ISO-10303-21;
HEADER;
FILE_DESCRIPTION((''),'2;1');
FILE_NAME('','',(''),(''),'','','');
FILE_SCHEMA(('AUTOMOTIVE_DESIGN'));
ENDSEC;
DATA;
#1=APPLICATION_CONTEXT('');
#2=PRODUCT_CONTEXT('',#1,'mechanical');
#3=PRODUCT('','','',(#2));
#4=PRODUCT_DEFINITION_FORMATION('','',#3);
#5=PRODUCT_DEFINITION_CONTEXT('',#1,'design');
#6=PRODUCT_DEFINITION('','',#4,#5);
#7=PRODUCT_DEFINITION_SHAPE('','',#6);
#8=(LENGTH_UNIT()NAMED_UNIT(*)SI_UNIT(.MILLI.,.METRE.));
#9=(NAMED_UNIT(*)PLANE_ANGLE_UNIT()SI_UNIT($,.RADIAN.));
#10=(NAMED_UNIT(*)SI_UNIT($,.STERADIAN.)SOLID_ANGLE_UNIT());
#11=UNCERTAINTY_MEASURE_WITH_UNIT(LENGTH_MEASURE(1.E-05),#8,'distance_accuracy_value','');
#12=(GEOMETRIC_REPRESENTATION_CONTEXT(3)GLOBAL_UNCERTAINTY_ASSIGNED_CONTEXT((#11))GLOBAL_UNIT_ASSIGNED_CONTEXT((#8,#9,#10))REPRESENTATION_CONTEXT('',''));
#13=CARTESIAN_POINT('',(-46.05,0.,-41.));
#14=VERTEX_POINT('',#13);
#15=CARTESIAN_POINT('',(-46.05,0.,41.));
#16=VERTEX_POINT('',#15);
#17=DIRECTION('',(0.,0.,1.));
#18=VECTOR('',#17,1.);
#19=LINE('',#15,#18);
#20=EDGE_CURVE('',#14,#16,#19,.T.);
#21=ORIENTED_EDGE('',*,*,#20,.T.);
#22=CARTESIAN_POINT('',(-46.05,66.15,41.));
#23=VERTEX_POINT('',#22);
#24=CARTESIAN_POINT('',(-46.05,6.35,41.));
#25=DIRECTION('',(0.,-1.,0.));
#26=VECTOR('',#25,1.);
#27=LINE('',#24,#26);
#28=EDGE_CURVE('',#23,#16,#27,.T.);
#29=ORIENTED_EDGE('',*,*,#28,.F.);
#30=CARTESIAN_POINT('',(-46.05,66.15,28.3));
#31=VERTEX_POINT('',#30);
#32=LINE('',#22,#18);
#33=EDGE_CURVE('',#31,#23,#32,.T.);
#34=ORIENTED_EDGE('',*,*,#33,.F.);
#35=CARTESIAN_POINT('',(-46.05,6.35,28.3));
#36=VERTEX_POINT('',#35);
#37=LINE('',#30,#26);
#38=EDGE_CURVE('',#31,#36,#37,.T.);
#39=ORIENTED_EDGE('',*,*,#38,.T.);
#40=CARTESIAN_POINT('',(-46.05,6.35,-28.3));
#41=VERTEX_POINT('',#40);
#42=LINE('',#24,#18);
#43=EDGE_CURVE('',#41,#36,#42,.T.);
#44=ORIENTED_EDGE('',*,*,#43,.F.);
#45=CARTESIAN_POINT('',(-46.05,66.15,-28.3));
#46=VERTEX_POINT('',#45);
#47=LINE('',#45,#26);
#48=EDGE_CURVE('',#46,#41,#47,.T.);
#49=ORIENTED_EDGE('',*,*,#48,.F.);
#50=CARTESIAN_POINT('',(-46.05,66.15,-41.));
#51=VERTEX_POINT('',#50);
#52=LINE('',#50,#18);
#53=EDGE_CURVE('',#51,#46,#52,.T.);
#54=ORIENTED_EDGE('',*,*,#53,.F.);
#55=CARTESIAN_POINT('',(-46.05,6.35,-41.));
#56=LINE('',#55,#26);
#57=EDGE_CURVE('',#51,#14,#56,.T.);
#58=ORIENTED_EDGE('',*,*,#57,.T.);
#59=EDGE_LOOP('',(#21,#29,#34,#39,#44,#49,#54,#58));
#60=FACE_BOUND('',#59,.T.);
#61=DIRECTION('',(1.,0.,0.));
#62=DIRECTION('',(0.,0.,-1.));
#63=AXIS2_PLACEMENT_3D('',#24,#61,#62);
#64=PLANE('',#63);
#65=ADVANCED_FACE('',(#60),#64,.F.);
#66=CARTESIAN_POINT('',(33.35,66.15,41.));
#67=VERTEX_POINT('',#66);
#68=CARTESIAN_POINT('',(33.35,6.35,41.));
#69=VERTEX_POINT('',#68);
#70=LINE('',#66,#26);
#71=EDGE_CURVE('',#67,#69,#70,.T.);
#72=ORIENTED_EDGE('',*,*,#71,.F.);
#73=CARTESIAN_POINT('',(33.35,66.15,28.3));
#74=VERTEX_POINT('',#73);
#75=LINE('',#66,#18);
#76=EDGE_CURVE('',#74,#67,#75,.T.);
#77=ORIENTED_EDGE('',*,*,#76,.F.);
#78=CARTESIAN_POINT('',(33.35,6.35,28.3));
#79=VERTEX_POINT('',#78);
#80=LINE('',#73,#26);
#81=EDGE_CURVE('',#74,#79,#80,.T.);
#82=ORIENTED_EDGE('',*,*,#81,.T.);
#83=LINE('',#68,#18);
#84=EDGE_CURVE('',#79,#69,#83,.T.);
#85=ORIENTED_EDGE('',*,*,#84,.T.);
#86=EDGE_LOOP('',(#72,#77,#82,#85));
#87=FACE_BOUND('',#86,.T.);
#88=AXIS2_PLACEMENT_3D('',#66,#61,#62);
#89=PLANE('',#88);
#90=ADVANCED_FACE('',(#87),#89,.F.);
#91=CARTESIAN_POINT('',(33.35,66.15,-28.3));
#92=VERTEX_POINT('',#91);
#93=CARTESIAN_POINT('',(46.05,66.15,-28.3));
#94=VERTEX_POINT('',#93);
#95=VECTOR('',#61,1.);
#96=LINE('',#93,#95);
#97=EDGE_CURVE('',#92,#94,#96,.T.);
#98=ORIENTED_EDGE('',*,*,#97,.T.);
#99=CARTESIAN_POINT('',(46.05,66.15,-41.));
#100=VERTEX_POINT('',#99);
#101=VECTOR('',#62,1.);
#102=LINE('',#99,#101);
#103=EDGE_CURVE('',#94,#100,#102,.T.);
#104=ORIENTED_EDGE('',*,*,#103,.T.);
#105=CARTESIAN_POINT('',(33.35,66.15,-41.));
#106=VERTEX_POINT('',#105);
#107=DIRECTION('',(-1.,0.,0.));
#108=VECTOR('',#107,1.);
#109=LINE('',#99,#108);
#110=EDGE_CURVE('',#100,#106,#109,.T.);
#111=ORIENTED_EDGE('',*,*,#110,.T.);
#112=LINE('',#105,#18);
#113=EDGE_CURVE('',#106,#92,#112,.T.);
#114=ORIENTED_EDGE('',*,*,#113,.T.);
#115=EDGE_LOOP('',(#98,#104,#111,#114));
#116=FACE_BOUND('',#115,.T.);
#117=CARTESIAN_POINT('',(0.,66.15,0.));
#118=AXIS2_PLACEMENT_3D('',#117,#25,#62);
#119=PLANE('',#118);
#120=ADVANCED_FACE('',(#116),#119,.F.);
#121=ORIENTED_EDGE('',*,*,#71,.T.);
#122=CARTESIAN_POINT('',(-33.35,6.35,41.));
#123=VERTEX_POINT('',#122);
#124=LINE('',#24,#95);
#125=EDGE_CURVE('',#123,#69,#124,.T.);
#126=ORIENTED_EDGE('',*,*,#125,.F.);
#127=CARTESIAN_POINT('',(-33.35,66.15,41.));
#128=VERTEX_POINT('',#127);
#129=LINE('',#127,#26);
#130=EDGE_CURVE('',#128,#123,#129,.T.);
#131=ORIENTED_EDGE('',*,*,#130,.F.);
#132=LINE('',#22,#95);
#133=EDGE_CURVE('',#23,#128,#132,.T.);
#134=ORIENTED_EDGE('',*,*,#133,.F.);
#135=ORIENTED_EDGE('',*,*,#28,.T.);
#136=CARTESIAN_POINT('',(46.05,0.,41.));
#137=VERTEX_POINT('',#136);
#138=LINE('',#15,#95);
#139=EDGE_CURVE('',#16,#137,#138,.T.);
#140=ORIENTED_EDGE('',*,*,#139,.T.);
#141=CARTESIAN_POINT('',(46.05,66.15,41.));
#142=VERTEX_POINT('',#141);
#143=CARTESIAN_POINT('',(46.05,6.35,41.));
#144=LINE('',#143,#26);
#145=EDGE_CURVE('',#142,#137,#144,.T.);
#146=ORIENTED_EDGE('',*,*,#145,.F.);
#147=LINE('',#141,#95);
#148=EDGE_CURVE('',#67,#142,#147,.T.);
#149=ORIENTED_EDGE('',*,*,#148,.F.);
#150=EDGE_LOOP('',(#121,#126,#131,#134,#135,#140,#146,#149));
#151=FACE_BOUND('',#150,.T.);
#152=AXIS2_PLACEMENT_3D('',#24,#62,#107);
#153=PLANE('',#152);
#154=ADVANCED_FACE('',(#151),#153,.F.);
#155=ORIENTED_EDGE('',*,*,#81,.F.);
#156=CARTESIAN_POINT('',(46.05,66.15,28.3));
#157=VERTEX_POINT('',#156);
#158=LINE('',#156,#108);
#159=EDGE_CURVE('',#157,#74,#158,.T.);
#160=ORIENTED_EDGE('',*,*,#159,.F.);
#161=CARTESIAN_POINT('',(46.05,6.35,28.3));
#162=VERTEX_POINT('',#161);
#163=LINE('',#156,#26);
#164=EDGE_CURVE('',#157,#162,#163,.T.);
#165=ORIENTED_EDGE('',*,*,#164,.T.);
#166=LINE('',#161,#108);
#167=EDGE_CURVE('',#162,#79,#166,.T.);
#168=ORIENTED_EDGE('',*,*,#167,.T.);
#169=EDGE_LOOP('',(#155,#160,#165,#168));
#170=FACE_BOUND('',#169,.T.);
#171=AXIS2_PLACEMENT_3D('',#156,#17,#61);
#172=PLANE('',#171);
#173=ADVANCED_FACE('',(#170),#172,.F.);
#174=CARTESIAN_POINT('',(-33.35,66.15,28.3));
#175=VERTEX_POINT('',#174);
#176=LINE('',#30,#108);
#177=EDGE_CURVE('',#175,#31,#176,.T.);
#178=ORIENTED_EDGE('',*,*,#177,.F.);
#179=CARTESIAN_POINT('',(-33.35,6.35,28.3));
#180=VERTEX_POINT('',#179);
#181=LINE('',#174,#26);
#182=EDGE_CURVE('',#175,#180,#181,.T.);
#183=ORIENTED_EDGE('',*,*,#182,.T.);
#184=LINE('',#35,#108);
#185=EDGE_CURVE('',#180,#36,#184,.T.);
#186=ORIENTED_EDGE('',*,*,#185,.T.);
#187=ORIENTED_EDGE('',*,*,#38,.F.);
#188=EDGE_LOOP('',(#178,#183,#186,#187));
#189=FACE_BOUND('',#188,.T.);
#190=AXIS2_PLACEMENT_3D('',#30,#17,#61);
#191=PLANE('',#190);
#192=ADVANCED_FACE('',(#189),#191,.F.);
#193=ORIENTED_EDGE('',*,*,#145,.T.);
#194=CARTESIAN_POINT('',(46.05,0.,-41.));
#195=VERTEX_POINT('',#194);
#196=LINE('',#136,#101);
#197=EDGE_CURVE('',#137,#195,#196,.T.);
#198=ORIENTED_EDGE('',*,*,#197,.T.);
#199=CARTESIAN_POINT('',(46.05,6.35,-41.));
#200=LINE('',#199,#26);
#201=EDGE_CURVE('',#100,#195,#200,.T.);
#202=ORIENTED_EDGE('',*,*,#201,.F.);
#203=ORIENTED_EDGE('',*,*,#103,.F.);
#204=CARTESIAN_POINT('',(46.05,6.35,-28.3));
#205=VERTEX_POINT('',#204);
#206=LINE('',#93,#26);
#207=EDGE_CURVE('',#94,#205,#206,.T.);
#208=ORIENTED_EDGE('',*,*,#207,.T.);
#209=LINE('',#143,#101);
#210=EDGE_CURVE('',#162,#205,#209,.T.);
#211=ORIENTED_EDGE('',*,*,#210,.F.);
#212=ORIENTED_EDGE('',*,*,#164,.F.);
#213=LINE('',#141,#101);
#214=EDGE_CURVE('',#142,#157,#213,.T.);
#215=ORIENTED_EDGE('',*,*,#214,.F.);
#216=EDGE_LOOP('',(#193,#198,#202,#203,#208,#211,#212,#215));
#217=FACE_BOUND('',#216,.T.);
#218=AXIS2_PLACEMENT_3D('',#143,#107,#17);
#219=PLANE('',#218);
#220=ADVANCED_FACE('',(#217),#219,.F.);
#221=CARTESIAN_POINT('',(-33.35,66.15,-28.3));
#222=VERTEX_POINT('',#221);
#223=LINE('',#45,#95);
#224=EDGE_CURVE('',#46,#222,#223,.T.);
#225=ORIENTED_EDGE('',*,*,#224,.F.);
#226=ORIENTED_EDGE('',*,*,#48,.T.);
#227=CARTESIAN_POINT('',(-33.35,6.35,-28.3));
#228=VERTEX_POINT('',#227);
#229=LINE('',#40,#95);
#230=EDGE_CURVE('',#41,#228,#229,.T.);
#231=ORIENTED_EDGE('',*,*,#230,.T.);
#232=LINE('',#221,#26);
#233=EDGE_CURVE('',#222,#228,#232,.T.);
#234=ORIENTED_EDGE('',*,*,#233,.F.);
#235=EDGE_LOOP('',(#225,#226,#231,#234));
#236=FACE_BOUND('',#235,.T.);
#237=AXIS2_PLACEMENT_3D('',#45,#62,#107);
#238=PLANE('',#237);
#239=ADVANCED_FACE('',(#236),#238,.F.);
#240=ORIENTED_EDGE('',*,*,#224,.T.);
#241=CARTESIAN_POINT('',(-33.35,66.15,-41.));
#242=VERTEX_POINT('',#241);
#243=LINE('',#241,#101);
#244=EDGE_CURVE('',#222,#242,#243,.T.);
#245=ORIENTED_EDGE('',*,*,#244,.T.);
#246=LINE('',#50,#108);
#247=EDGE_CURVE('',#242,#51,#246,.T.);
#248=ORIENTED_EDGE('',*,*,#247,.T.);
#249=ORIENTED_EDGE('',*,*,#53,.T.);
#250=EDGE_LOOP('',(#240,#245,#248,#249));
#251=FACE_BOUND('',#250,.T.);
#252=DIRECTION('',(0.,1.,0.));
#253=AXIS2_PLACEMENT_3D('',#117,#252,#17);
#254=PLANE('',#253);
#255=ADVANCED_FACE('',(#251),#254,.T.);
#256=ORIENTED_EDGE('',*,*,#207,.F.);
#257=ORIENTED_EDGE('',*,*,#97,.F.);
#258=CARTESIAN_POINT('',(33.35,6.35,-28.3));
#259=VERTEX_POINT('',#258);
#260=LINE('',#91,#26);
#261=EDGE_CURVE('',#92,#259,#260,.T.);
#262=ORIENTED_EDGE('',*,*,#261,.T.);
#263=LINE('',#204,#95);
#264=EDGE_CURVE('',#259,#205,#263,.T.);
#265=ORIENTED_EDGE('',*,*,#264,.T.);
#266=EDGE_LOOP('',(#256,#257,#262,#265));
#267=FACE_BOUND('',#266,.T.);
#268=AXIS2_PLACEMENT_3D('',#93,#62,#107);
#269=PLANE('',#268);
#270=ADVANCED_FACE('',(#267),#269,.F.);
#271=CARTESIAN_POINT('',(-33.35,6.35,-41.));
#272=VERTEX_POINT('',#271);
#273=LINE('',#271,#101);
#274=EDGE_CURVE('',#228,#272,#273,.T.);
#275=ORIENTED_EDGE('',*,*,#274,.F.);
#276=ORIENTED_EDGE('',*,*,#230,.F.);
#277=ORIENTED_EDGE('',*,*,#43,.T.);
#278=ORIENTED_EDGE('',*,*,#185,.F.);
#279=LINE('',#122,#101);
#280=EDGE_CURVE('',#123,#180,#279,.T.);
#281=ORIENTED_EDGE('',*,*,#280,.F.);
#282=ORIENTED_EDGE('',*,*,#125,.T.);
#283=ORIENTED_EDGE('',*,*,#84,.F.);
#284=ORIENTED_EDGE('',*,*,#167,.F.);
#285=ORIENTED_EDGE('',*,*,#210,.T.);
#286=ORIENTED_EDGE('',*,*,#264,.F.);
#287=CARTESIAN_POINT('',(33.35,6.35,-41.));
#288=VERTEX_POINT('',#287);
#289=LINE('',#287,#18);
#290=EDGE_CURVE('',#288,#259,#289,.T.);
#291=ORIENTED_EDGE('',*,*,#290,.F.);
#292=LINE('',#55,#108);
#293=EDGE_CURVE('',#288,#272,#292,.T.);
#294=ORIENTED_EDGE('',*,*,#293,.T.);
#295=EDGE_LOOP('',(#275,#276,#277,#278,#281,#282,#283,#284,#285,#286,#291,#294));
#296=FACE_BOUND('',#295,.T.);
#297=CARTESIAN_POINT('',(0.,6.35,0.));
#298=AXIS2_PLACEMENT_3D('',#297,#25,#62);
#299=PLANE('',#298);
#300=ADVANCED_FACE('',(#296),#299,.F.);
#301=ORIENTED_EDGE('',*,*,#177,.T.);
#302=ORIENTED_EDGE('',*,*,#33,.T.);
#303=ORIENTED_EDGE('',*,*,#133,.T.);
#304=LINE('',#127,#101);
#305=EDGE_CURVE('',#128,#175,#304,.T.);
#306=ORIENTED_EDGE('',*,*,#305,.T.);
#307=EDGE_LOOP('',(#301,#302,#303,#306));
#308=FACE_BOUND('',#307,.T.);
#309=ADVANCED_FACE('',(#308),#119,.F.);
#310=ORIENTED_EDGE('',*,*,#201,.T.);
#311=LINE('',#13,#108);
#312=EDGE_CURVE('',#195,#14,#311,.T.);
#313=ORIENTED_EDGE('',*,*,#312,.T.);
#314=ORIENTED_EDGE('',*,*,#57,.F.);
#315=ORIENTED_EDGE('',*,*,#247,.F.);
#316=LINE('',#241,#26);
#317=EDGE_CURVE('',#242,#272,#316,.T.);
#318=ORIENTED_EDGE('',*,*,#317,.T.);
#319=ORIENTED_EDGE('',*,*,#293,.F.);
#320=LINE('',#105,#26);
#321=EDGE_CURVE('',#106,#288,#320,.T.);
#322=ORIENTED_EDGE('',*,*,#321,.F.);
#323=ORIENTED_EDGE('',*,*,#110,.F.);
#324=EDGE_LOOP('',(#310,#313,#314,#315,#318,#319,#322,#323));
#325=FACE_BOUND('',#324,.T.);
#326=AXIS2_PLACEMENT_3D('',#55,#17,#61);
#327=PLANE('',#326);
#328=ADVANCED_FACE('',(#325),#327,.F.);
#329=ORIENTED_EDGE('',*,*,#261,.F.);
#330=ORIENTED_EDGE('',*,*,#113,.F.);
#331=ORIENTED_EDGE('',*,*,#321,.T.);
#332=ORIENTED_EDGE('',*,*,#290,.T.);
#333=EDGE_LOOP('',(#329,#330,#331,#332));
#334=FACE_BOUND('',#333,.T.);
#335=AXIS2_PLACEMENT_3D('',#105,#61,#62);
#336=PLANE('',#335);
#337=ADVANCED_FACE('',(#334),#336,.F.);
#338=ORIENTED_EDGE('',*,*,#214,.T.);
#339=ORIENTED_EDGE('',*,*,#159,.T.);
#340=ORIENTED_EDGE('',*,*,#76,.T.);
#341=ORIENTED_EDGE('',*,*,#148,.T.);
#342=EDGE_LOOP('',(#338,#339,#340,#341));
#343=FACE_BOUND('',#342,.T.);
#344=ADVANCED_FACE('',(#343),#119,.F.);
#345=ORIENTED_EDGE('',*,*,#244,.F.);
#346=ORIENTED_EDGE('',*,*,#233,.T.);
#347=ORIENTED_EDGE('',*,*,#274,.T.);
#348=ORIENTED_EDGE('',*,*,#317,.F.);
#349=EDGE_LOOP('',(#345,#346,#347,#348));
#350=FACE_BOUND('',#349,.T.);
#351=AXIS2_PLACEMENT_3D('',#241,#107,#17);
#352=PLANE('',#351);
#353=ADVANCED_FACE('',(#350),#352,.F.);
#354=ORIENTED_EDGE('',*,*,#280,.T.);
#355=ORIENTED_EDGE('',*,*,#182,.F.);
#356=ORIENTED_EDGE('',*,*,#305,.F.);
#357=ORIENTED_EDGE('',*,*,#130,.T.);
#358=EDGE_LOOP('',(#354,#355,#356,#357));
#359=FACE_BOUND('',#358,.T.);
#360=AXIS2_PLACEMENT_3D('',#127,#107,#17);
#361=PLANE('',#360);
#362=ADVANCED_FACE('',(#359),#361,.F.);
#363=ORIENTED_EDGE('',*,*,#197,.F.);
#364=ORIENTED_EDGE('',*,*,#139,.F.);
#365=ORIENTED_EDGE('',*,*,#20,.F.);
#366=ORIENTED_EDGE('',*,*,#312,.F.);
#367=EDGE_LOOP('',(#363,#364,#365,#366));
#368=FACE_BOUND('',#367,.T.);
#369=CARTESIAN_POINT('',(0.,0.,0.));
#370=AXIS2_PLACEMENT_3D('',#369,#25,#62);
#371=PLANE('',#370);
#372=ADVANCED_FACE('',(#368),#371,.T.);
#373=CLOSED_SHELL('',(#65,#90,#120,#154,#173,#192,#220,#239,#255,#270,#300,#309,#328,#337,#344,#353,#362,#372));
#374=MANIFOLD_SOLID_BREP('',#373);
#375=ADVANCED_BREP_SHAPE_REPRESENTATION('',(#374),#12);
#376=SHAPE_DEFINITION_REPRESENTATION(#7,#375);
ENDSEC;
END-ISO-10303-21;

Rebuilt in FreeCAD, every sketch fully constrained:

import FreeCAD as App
import Part
import Sketcher
Q = App.Units.Quantity


def add_polygon(sketch, points):
    """Adds a closed chain of lines whose ends are joined by coincident constraints."""
    first, n = sketch.GeometryCount, len(points)
    for a, b in zip(points, points[1:] + points[:1]):
        sketch.addGeometry(Part.LineSegment(App.Vector(*a, 0), App.Vector(*b, 0)), False)
    for i in range(n):
        sketch.addConstraint(Sketcher.Constraint("Coincident", first + i, 2, first + (i + 1) % n, 1))

doc = App.newDocument("Part")
params = doc.addObject("Spreadsheet::Sheet", "Params")
for row, (alias, value) in enumerate([
    ("sketch1_height", "82 mm"),
    ("sketch1_width", "92.1 mm"),
    ("pad1_length", "6.35 mm"),
    ("sketch2_width", "12.7 mm"),
    ("pad2_length", "59.8 mm"),
], start=1):
    params.set(f"A{row}", alias)
    params.set(f"B{row}", "=" + value)
    params.setAlias(f"B{row}", alias)

body = doc.addObject("PartDesign::Body", "Body")

sketch1 = body.newObject("Sketcher::SketchObject", "Sketch")
sketch1.AttachmentSupport = (doc.getObject("XZ_Plane"), [""])
sketch1.MapMode = "FlatFace"
add_polygon(sketch1, [(-46.05, -41), (-46.05, 41), (46.05, 41), (46.05, -41)])
sketch1.addConstraint(Sketcher.Constraint("Vertical", 0))
sketch1.addConstraint(Sketcher.Constraint("Horizontal", 1))
sketch1.addConstraint(Sketcher.Constraint("Vertical", 2))
sketch1.addConstraint(Sketcher.Constraint("Horizontal", 3))
sketch1.addConstraint(Sketcher.Constraint("Symmetric", 0, 2, 2, 2, -1, 1))
sketch1.addConstraint(Sketcher.Constraint("DistanceY", 0, 1, 0, 2, Q("82 mm")))
sketch1.addConstraint(Sketcher.Constraint("DistanceX", 1, 1, 1, 2, Q("92.1 mm")))
sketch1.setExpression("Constraints[9]", "Params.sketch1_height")
sketch1.setExpression("Constraints[10]", "Params.sketch1_width")
pad1 = body.newObject("PartDesign::Pad", "Pad")
pad1.Profile = sketch1
pad1.setExpression("Length", "Params.pad1_length")
pad1.Reversed = True

sketch2 = body.newObject("Sketcher::SketchObject", "Sketch001")
sketch2.AttachmentSupport = (doc.getObject("XZ_Plane"), [""])
sketch2.MapMode = "FlatFace"
sketch2.AttachmentOffset = App.Placement(App.Vector(0, 0, -6.35), App.Rotation())
add_polygon(sketch2, [(-46.05, -41), (-46.05, -28.3), (-33.35, -28.3), (-33.35, -41)])
add_polygon(sketch2, [(33.35, -41), (33.35, -28.3), (46.05, -28.3), (46.05, -41)])
add_polygon(sketch2, [(33.35, 28.3), (33.35, 41), (46.05, 41), (46.05, 28.3)])
add_polygon(sketch2, [(-46.05, 28.3), (-46.05, 41), (-33.35, 41), (-33.35, 28.3)])
sketch2.addConstraint(Sketcher.Constraint("Vertical", 0))
sketch2.addConstraint(Sketcher.Constraint("Horizontal", 1))
sketch2.addConstraint(Sketcher.Constraint("Vertical", 2))
sketch2.addConstraint(Sketcher.Constraint("Horizontal", 3))
sketch2.addConstraint(Sketcher.Constraint("Vertical", 4))
sketch2.addConstraint(Sketcher.Constraint("Horizontal", 5))
sketch2.addConstraint(Sketcher.Constraint("Vertical", 6))
sketch2.addConstraint(Sketcher.Constraint("Horizontal", 7))
sketch2.addConstraint(Sketcher.Constraint("Vertical", 8))
sketch2.addConstraint(Sketcher.Constraint("Horizontal", 9))
sketch2.addConstraint(Sketcher.Constraint("Vertical", 10))
sketch2.addConstraint(Sketcher.Constraint("Horizontal", 11))
sketch2.addConstraint(Sketcher.Constraint("Vertical", 12))
sketch2.addConstraint(Sketcher.Constraint("Horizontal", 13))
sketch2.addConstraint(Sketcher.Constraint("Vertical", 14))
sketch2.addConstraint(Sketcher.Constraint("Horizontal", 15))
sketch2.addConstraint(Sketcher.Constraint("Symmetric", 2, 2, 8, 2, -1, 1))
sketch2.addConstraint(Sketcher.Constraint("Symmetric", 0, 2, 10, 2, -1, 1))
sketch2.addConstraint(Sketcher.Constraint("Symmetric", 6, 2, 12, 2, -1, 1))
sketch2.addConstraint(Sketcher.Constraint("Symmetric", 4, 2, 14, 2, -1, 1))
sketch2.addConstraint(Sketcher.Constraint("Symmetric", 1, 2, 4, 2, -2))
sketch2.addConstraint(Sketcher.Constraint("Symmetric", 3, 2, 6, 2, -2))
sketch2.addConstraint(Sketcher.Constraint("Equal", 15, 0))
sketch2.addConstraint(Sketcher.Constraint("DistanceX", 1, 1, 1, 2, Q("12.7 mm")))
sketch2.addConstraint(Sketcher.Constraint("DistanceY", 2, 2, -1, 1, Q("41 mm")))
sketch2.addConstraint(Sketcher.Constraint("DistanceX", 1, 2, 4, 2, Q("66.7 mm")))
sketch2.setExpression("Constraints[39]", "Params.sketch2_width")
pad2 = body.newObject("PartDesign::Pad", "Pad001")
pad2.Profile = sketch2
pad2.setExpression("Length", "Params.pad2_length")
pad2.Reversed = True

doc.recompute()
